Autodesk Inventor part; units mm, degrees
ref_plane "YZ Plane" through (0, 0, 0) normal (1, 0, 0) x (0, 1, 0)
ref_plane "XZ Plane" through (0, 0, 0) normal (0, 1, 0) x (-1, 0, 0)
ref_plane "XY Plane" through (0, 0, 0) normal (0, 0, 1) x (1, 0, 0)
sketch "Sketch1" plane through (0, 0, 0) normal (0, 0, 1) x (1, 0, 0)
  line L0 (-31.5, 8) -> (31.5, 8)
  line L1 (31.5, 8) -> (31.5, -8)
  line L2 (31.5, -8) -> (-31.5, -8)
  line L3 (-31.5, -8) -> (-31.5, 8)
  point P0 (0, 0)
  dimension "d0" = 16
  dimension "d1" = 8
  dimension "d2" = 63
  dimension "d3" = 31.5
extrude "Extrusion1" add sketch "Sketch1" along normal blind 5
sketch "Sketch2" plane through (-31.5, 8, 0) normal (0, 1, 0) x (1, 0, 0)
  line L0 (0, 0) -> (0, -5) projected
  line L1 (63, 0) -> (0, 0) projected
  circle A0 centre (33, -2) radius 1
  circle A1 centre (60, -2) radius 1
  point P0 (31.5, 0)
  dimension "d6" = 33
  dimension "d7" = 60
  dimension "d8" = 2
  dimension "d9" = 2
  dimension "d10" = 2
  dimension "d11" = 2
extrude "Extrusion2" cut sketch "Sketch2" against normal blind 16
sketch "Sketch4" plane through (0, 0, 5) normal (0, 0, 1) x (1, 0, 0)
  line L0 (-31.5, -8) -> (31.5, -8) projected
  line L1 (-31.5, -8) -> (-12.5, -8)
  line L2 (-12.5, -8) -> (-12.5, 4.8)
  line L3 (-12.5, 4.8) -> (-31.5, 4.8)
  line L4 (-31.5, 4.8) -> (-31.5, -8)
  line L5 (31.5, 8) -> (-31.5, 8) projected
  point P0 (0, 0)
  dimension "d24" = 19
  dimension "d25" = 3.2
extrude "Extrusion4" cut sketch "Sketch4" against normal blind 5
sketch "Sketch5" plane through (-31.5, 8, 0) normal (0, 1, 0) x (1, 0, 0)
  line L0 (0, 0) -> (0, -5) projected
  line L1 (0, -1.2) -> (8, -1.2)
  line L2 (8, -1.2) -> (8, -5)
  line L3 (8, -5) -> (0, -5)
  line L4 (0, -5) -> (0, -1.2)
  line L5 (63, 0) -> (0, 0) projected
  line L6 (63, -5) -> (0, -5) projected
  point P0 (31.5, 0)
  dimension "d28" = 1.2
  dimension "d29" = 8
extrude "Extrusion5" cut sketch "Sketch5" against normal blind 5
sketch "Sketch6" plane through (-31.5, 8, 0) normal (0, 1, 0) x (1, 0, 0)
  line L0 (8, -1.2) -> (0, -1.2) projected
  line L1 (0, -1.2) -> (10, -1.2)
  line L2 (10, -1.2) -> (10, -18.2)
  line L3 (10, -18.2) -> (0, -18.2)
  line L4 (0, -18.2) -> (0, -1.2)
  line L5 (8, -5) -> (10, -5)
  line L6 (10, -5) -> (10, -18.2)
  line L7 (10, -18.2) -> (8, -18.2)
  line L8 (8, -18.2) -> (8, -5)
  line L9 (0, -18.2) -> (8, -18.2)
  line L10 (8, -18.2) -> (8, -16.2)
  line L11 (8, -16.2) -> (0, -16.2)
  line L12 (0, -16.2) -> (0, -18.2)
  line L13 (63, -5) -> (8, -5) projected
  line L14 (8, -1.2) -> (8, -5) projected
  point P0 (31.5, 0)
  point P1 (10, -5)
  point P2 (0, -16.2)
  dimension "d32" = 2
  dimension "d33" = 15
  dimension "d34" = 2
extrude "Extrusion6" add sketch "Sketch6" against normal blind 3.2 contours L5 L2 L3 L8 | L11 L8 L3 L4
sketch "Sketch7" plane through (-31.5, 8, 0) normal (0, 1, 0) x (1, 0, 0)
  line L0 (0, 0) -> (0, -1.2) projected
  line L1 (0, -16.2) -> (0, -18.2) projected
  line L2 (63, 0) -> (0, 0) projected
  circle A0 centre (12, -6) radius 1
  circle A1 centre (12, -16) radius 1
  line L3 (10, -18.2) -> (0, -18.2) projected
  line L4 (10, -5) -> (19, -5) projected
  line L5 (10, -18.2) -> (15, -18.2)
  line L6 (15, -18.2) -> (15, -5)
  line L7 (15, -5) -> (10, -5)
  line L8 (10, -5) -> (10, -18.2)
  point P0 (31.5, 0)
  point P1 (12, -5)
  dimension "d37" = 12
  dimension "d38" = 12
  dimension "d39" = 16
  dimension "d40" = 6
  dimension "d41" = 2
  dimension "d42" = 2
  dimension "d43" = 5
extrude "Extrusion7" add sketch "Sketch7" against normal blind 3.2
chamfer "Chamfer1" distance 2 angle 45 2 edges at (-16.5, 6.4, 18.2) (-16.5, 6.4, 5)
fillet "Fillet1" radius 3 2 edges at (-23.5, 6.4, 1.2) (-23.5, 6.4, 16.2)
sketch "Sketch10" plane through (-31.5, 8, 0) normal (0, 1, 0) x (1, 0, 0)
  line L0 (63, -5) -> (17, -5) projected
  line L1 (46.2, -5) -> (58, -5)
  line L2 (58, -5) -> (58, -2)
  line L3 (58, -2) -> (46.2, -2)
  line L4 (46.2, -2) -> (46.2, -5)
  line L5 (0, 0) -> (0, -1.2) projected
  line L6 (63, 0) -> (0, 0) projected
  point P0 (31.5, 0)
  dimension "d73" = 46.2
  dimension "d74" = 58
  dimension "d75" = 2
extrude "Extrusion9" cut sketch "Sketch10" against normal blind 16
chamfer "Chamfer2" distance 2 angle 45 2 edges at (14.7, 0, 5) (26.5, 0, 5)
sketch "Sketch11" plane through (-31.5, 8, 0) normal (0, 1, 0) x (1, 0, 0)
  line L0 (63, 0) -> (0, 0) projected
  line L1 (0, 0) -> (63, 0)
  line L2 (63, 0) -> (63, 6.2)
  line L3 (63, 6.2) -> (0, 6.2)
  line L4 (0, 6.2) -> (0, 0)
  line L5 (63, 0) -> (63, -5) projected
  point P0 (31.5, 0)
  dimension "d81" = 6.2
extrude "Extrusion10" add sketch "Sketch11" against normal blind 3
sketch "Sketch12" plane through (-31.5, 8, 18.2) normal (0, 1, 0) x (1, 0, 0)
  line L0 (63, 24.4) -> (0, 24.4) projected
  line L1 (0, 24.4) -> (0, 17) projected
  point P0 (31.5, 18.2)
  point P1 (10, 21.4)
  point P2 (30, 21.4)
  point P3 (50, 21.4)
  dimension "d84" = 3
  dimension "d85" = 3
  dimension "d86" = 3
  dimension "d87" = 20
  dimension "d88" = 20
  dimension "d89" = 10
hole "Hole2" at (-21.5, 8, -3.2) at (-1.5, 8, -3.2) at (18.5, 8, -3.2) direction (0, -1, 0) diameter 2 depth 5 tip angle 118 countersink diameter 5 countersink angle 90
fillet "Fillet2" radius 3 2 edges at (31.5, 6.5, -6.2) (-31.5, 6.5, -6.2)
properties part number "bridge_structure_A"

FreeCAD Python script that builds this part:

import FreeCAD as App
import Part
import Sketcher

V = App.Vector


def edges_at(feature, points):
    """Names of the edges that pass closest to the given points."""
    edges = feature.Shape.Edges
    near = lambda p: min(range(len(edges)), key=lambda i: edges[i].distToShape(Part.Vertex(*p))[0])
    return sorted({f"Edge{near(p) + 1}" for p in points})

doc = App.newDocument("Part")
body = doc.addObject("PartDesign::Body", "Body")

# Sketch on XY plane
sketch1 = body.newObject("Sketcher::SketchObject", "Sketch")
sketch1.AttachmentSupport = (doc.getObject("XY_Plane"), [""])
sketch1.MapMode = "FlatFace"
sketch1.addGeometry([
    Part.LineSegment(V(32, 8, 0), V(-32, 8, 0)),
    Part.LineSegment(V(-32, 8, 0), V(-32, -8, 0)),
    Part.LineSegment(V(-32, -8, 0), V(32, -8, 0)),
    Part.LineSegment(V(32, -8, 0), V(32, 8, 0)),
], False)
sketch1.addConstraint([
    Sketcher.Constraint("Coincident", 0, 2, 1, 1),
    Sketcher.Constraint("Coincident", 1, 2, 2, 1),
    Sketcher.Constraint("Coincident", 2, 2, 3, 1),
    Sketcher.Constraint("Coincident", 3, 2, 0, 1),
    Sketcher.Constraint("Horizontal", 0),
    Sketcher.Constraint("Vertical", 1),
    Sketcher.Constraint("Horizontal", 2),
    Sketcher.Constraint("Vertical", 3),
    Sketcher.Constraint("Symmetric", 0, 2, 2, 2, -1, 1),
    Sketcher.Constraint("DistanceX", 0, 2, 0, 1, 63.0),
    Sketcher.Constraint("DistanceY", 1, 2, 1, 1, 16.0),
])
pad1 = body.newObject("PartDesign::Pad", "Pad")
pad1.Profile = sketch1
pad1.Length = 5

# Sketch on XZ plane
sketch2 = body.newObject("Sketcher::SketchObject", "Sketch001")
sketch2.AttachmentSupport = (doc.getObject("XZ_Plane"), [""])
sketch2.MapMode = "FlatFace"
sketch2.AttachmentOffset = App.Placement(V(0, 0, -8), App.Rotation())
sketch2.addGeometry([
    Part.Circle(V(1.5, 2, 0), V(0, 0, 1), 1),
    Part.Circle(V(28.5, 2, 0), V(0, 0, 1), 1),
], False)
sketch2.addConstraint([
    Sketcher.Constraint("Equal", 0, 1),
    Sketcher.Constraint("Horizontal", 0, 3, 1, 3),
    Sketcher.Constraint("Diameter", 0, 2.0),
    Sketcher.Constraint("DistanceY", -1, 1, 0, 3, 2.0),
    Sketcher.Constraint("DistanceX", 0, 3, 1, 3, 27.0),
    Sketcher.Constraint("DistanceX", -1, 1, 0, 3, 1.5),
])
pocket1 = body.newObject("PartDesign::Pocket", "Pocket")
pocket1.Profile = sketch2
pocket1.Length = 16
pocket1.Reversed = True

# Sketch on XY plane
sketch3 = body.newObject("Sketcher::SketchObject", "Sketch002")
sketch3.AttachmentSupport = (doc.getObject("XY_Plane"), [""])
sketch3.MapMode = "FlatFace"
sketch3.AttachmentOffset = App.Placement(V(0, 0, 5), App.Rotation())
sketch3.addGeometry([
    Part.LineSegment(V(-32, 5, 0), V(-32, -8, 0)),
    Part.LineSegment(V(-32, -8, 0), V(-12, -8, 0)),
    Part.LineSegment(V(-12, -8, 0), V(-12, 5, 0)),
    Part.LineSegment(V(-12, 5, 0), V(-32, 5, 0)),
], False)
sketch3.addConstraint([
    Sketcher.Constraint("Coincident", 0, 2, 1, 1),
    Sketcher.Constraint("Coincident", 1, 2, 2, 1),
    Sketcher.Constraint("Coincident", 2, 2, 3, 1),
    Sketcher.Constraint("Coincident", 3, 2, 0, 1),
    Sketcher.Constraint("Vertical", 0),
    Sketcher.Constraint("Horizontal", 1),
    Sketcher.Constraint("Vertical", 2),
    Sketcher.Constraint("Horizontal", 3),
    Sketcher.Constraint("DistanceX", 1, 1, 1, 2, 19.0),
    Sketcher.Constraint("DistanceY", 0, 2, 0, 1, 12.8),
    Sketcher.Constraint("DistanceY", 0, 2, -1, 1, 8.0),
    Sketcher.Constraint("DistanceX", 0, 2, -1, 1, 31.5),
])
pocket2 = body.newObject("PartDesign::Pocket", "Pocket001")
pocket2.Profile = sketch3
pocket2.Length = 5

# Sketch on XZ plane
sketch4 = body.newObject("Sketcher::SketchObject", "Sketch003")
sketch4.AttachmentSupport = (doc.getObject("XZ_Plane"), [""])
sketch4.MapMode = "FlatFace"
sketch4.AttachmentOffset = App.Placement(V(0, 0, -8), App.Rotation())
sketch4.addGeometry([
    Part.LineSegment(V(-23.5, 1.2, 0), V(-31.5, 1.2, 0)),
    Part.LineSegment(V(-31.5, 1.2, 0), V(-31.5, 5, 0)),
    Part.LineSegment(V(-31.5, 5, 0), V(-23.5, 5, 0)),
    Part.LineSegment(V(-23.5, 5, 0), V(-23.5, 1.2, 0)),
], False)
sketch4.addConstraint([
    Sketcher.Constraint("Coincident", 0, 2, 1, 1),
    Sketcher.Constraint("Coincident", 1, 2, 2, 1),
    Sketcher.Constraint("Coincident", 2, 2, 3, 1),
    Sketcher.Constraint("Coincident", 3, 2, 0, 1),
    Sketcher.Constraint("Horizontal", 0),
    Sketcher.Constraint("Vertical", 1),
    Sketcher.Constraint("Horizontal", 2),
    Sketcher.Constraint("Vertical", 3),
    Sketcher.Constraint("DistanceX", 0, 2, 0, 1, 8.0),
    Sketcher.Constraint("DistanceY", -1, 1, 0, 2, 1.2),
    Sketcher.Constraint("DistanceY", 1, 1, 1, 2, 3.8),
    Sketcher.Constraint("DistanceX", 0, 2, -1, 1, 31.5),
])
pocket3 = body.newObject("PartDesign::Pocket", "Pocket002")
pocket3.Profile = sketch4
pocket3.Length = 5
pocket3.Reversed = True

# Sketch on XZ plane
sketch5 = body.newObject("Sketcher::SketchObject", "Sketch004")
sketch5.AttachmentSupport = (doc.getObject("XZ_Plane"), [""])
sketch5.MapMode = "FlatFace"
sketch5.AttachmentOffset = App.Placement(V(0, 0, -8), App.Rotation())
sketch5.addGeometry([
    Part.LineSegment(V(-21.5, 5, 0), V(-23.5, 5, 0)),  # 0
    Part.LineSegment(V(-23.5, 5, 0), V(-23.5, 16.2, 0)),  # 1
    Part.LineSegment(V(-23.5, 16.2, 0), V(-31.5, 16.2, 0)),  # 2
    Part.LineSegment(V(-31.5, 16.2, 0), V(-31.5, 18.2, 0)),  # 3
    Part.LineSegment(V(-31.5, 18.2, 0), V(-21.5, 18.2, 0)),  # 4
    Part.LineSegment(V(-21.5, 18.2, 0), V(-21.5, 5, 0)),  # 5
], False)
sketch5.addConstraint([
    Sketcher.Constraint("Coincident", 0, 2, 1, 1),
    Sketcher.Constraint("Coincident", 1, 2, 2, 1),
    Sketcher.Constraint("Coincident", 2, 2, 3, 1),
    Sketcher.Constraint("Coincident", 3, 2, 4, 1),
    Sketcher.Constraint("Coincident", 4, 2, 5, 1),
    Sketcher.Constraint("Coincident", 5, 2, 0, 1),
    Sketcher.Constraint("Horizontal", 0),
    Sketcher.Constraint("Vertical", 1),
    Sketcher.Constraint("Horizontal", 2),
    Sketcher.Constraint("Vertical", 3),
    Sketcher.Constraint("Horizontal", 4),
    Sketcher.Constraint("Vertical", 5),
    Sketcher.Constraint("Equal", 0, 3),
    Sketcher.Constraint("DistanceX", 0, 2, 0, 1, 2.0),
    Sketcher.Constraint("DistanceX", 2, 2, 2, 1, 8.0),
    Sketcher.Constraint("DistanceY", 1, 1, 1, 2, 11.2),
    Sketcher.Constraint("DistanceY", -1, 1, 0, 2, 5.0),
    Sketcher.Constraint("DistanceX", 0, 2, -1, 1, 23.5),
])
pad2 = body.newObject("PartDesign::Pad", "Pad001")
pad2.Profile = sketch5
pad2.Length = 3.2

# Sketch on XZ plane
sketch6 = body.newObject("Sketcher::SketchObject", "Sketch005")
sketch6.AttachmentSupport = (doc.getObject("XZ_Plane"), [""])
sketch6.MapMode = "FlatFace"
sketch6.AttachmentOffset = App.Placement(V(0, 0, -8), App.Rotation())
sketch6.addGeometry([
    Part.LineSegment(V(-16.5, 5, 0), V(-19.5, 5, 0)),  # 0
    Part.LineSegment(V(-19.5, 5, 0), V(-21.5, 5, 0)),  # 1
    Part.LineSegment(V(-21.5, 5, 0), V(-21.5, 18.2, 0)),  # 2
    Part.LineSegment(V(-21.5, 18.2, 0), V(-16.5, 18.2, 0)),  # 3
    Part.LineSegment(V(-16.5, 18.2, 0), V(-16.5, 5, 0)),  # 4
    Part.Circle(V(-19.5, 16, 0), V(0, 0, 1), 1),  # 5
    Part.Circle(V(-19.5, 6, 0), V(0, 0, 1), 1),  # 6
], False)
sketch6.addConstraint([
    Sketcher.Constraint("Coincident", 0, 2, 1, 1),
    Sketcher.Constraint("Coincident", 1, 2, 2, 1),
    Sketcher.Constraint("Coincident", 2, 2, 3, 1),
    Sketcher.Constraint("Coincident", 3, 2, 4, 1),
    Sketcher.Constraint("Coincident", 4, 2, 0, 1),
    Sketcher.Constraint("Horizontal", 0),
    Sketcher.Constraint("Horizontal", 1),
    Sketcher.Constraint("Vertical", 2),
    Sketcher.Constraint("Horizontal", 3),
    Sketcher.Constraint("Vertical", 4),
    Sketcher.Constraint("Equal", 5, 6),
    Sketcher.Constraint("Vertical", 5, 3, 6, 3),
    Sketcher.Constraint("Vertical", 6, 3, 0, 2),
    Sketcher.Constraint("Diameter", 5, 2.0),
    Sketcher.Constraint("DistanceX", 1, 2, 1, 1, 2.0),
    Sketcher.Constraint("DistanceX", 3, 1, 3, 2, 5.0),
    Sketcher.Constraint("DistanceY", -1, 1, 5, 3, 16.0),
    Sketcher.Constraint("DistanceY", -1, 1, 6, 3, 6.0),
    Sketcher.Constraint("DistanceY", -1, 1, 0, 2, 5.0),
    Sketcher.Constraint("DistanceY", 2, 1, 2, 2, 13.2),
    Sketcher.Constraint("DistanceX", 5, 3, -1, 1, 19.5),
])
pad3 = body.newObject("PartDesign::Pad", "Pad002")
pad3.Profile = sketch6
pad3.Length = 3.2
doc.recompute()

chamfer = body.newObject("PartDesign::Chamfer", "Chamfer")
chamfer.Base = (pad3, edges_at(pad3, [(-16.5, 6.4, 18.2), (-16.5, 6.4, 5)]))
chamfer.Size = 2
doc.recompute()

fillet = body.newObject("PartDesign::Fillet", "Fillet")
fillet.Base = (chamfer, edges_at(chamfer, [(-23.5, 6.4, 1.2), (-23.5, 6.4, 16.2)]))
fillet.Radius = 3

# Sketch on XZ plane
sketch7 = body.newObject("Sketcher::SketchObject", "Sketch006")
sketch7.AttachmentSupport = (doc.getObject("XZ_Plane"), [""])
sketch7.MapMode = "FlatFace"
sketch7.AttachmentOffset = App.Placement(V(0, 0, -8), App.Rotation())
sketch7.addGeometry([
    Part.LineSegment(V(14.7, 5, 0), V(26.5, 5, 0)),
    Part.LineSegment(V(26.5, 5, 0), V(26.5, 2, 0)),
    Part.LineSegment(V(26.5, 2, 0), V(14.7, 2, 0)),
    Part.LineSegment(V(14.7, 2, 0), V(14.7, 5, 0)),
], False)
sketch7.addConstraint([
    Sketcher.Constraint("Coincident", 0, 2, 1, 1),
    Sketcher.Constraint("Coincident", 1, 2, 2, 1),
    Sketcher.Constraint("Coincident", 2, 2, 3, 1),
    Sketcher.Constraint("Coincident", 3, 2, 0, 1),
    Sketcher.Constraint("Horizontal", 0),
    Sketcher.Constraint("Vertical", 1),
    Sketcher.Constraint("Horizontal", 2),
    Sketcher.Constraint("Vertical", 3),
    Sketcher.Constraint("DistanceY", -1, 1, 1, 2, 2.0),
    Sketcher.Constraint("DistanceY", 1, 2, 1, 1, 3.0),
    Sketcher.Constraint("DistanceX", 0, 1, 0, 2, 11.8),
    Sketcher.Constraint("DistanceX", -1, 1, 0, 2, 26.5),
])
pocket4 = body.newObject("PartDesign::Pocket", "Pocket003")
pocket4.Profile = sketch7
pocket4.Length = 16
pocket4.Reversed = True
doc.recompute()

chamfer2 = body.newObject("PartDesign::Chamfer", "Chamfer001")
chamfer2.Base = (pocket4, edges_at(pocket4, [(14.7, 0, 5), (26.5, 0, 5)]))
chamfer2.Size = 2

# Sketch on XZ plane
sketch8 = body.newObject("Sketcher::SketchObject", "Sketch007")
sketch8.AttachmentSupport = (doc.getObject("XZ_Plane"), [""])
sketch8.MapMode = "FlatFace"
sketch8.AttachmentOffset = App.Placement(V(0, 0, -8), App.Rotation())
sketch8.addGeometry([
    Part.LineSegment(V(-32, 0, 0), V(32, 0, 0)),
    Part.LineSegment(V(32, 0, 0), V(32, -6, 0)),
    Part.LineSegment(V(32, -6, 0), V(-32, -6, 0)),
    Part.LineSegment(V(-32, -6, 0), V(-32, 0, 0)),
], False)
sketch8.addConstraint([
    Sketcher.Constraint("Coincident", 0, 2, 1, 1),
    Sketcher.Constraint("Coincident", 1, 2, 2, 1),
    Sketcher.Constraint("Coincident", 2, 2, 3, 1),
    Sketcher.Constraint("Coincident", 3, 2, 0, 1),
    Sketcher.Constraint("Horizontal", 0),
    Sketcher.Constraint("Vertical", 1),
    Sketcher.Constraint("Horizontal", 2),
    Sketcher.Constraint("Vertical", 3),
    Sketcher.Constraint("Symmetric", 0, 2, 3, 2, -1, 1),
    Sketcher.Constraint("DistanceY", 1, 2, 1, 1, 6.2),
    Sketcher.Constraint("DistanceX", 0, 1, 0, 2, 63.0),
])
pad4 = body.newObject("PartDesign::Pad", "Pad003")
pad4.Profile = sketch8
pad4.Length = 3

# Sketch on XZ plane
sketch9 = body.newObject("Sketcher::SketchObject", "Sketch008")
sketch9.AttachmentSupport = (doc.getObject("XZ_Plane"), [""])
sketch9.MapMode = "FlatFace"
sketch9.AttachmentOffset = App.Placement(V(0, 0, -8), App.Rotation())
sketch9.addGeometry([
    Part.Circle(V(-21.5, -3.2, 0), V(0, 0, 1), 1),
    Part.Circle(V(-1.5, -3.2, 0), V(0, 0, 1), 1),
    Part.Circle(V(18.5, -3.2, 0), V(0, 0, 1), 1),
], False)
sketch9.addConstraint([
    Sketcher.Constraint("Equal", 0, 1),
    Sketcher.Constraint("Equal", 1, 2),
    Sketcher.Constraint("Horizontal", 0, 3, 1, 3),
    Sketcher.Constraint("Horizontal", 1, 3, 2, 3),
    Sketcher.Constraint("Diameter", 0, 2.0),
    Sketcher.Constraint("DistanceX", 0, 3, 1, 3, 20.0),
    Sketcher.Constraint("DistanceX", 1, 3, 2, 3, 20.0),
    Sketcher.Constraint("DistanceX", 0, 3, -1, 1, 21.5),
    Sketcher.Constraint("DistanceY", 0, 3, -1, 1, 3.2),
])
doc.recompute()
hole = body.newObject("PartDesign::Hole", "Hole")
hole.Profile = sketch9
hole.ThreadType = "None"
hole.Diameter = 2
hole.DepthType = "Dimension"
hole.Depth = 5
hole.DrillPoint = "Angled"
hole.DrillPointAngle = 118
hole.HoleCutType = "Countersink"
hole.HoleCutDiameter = 5
hole.HoleCutCountersinkAngle = 90
hole.Reversed = True
doc.recompute()

fillet2 = body.newObject("PartDesign::Fillet", "Fillet001")
fillet2.Base = (hole, edges_at(hole, [(31.5, 6.5, -6.2), (-31.5, 6.5, -6.2)]))
fillet2.Radius = 3

doc.recompute()
